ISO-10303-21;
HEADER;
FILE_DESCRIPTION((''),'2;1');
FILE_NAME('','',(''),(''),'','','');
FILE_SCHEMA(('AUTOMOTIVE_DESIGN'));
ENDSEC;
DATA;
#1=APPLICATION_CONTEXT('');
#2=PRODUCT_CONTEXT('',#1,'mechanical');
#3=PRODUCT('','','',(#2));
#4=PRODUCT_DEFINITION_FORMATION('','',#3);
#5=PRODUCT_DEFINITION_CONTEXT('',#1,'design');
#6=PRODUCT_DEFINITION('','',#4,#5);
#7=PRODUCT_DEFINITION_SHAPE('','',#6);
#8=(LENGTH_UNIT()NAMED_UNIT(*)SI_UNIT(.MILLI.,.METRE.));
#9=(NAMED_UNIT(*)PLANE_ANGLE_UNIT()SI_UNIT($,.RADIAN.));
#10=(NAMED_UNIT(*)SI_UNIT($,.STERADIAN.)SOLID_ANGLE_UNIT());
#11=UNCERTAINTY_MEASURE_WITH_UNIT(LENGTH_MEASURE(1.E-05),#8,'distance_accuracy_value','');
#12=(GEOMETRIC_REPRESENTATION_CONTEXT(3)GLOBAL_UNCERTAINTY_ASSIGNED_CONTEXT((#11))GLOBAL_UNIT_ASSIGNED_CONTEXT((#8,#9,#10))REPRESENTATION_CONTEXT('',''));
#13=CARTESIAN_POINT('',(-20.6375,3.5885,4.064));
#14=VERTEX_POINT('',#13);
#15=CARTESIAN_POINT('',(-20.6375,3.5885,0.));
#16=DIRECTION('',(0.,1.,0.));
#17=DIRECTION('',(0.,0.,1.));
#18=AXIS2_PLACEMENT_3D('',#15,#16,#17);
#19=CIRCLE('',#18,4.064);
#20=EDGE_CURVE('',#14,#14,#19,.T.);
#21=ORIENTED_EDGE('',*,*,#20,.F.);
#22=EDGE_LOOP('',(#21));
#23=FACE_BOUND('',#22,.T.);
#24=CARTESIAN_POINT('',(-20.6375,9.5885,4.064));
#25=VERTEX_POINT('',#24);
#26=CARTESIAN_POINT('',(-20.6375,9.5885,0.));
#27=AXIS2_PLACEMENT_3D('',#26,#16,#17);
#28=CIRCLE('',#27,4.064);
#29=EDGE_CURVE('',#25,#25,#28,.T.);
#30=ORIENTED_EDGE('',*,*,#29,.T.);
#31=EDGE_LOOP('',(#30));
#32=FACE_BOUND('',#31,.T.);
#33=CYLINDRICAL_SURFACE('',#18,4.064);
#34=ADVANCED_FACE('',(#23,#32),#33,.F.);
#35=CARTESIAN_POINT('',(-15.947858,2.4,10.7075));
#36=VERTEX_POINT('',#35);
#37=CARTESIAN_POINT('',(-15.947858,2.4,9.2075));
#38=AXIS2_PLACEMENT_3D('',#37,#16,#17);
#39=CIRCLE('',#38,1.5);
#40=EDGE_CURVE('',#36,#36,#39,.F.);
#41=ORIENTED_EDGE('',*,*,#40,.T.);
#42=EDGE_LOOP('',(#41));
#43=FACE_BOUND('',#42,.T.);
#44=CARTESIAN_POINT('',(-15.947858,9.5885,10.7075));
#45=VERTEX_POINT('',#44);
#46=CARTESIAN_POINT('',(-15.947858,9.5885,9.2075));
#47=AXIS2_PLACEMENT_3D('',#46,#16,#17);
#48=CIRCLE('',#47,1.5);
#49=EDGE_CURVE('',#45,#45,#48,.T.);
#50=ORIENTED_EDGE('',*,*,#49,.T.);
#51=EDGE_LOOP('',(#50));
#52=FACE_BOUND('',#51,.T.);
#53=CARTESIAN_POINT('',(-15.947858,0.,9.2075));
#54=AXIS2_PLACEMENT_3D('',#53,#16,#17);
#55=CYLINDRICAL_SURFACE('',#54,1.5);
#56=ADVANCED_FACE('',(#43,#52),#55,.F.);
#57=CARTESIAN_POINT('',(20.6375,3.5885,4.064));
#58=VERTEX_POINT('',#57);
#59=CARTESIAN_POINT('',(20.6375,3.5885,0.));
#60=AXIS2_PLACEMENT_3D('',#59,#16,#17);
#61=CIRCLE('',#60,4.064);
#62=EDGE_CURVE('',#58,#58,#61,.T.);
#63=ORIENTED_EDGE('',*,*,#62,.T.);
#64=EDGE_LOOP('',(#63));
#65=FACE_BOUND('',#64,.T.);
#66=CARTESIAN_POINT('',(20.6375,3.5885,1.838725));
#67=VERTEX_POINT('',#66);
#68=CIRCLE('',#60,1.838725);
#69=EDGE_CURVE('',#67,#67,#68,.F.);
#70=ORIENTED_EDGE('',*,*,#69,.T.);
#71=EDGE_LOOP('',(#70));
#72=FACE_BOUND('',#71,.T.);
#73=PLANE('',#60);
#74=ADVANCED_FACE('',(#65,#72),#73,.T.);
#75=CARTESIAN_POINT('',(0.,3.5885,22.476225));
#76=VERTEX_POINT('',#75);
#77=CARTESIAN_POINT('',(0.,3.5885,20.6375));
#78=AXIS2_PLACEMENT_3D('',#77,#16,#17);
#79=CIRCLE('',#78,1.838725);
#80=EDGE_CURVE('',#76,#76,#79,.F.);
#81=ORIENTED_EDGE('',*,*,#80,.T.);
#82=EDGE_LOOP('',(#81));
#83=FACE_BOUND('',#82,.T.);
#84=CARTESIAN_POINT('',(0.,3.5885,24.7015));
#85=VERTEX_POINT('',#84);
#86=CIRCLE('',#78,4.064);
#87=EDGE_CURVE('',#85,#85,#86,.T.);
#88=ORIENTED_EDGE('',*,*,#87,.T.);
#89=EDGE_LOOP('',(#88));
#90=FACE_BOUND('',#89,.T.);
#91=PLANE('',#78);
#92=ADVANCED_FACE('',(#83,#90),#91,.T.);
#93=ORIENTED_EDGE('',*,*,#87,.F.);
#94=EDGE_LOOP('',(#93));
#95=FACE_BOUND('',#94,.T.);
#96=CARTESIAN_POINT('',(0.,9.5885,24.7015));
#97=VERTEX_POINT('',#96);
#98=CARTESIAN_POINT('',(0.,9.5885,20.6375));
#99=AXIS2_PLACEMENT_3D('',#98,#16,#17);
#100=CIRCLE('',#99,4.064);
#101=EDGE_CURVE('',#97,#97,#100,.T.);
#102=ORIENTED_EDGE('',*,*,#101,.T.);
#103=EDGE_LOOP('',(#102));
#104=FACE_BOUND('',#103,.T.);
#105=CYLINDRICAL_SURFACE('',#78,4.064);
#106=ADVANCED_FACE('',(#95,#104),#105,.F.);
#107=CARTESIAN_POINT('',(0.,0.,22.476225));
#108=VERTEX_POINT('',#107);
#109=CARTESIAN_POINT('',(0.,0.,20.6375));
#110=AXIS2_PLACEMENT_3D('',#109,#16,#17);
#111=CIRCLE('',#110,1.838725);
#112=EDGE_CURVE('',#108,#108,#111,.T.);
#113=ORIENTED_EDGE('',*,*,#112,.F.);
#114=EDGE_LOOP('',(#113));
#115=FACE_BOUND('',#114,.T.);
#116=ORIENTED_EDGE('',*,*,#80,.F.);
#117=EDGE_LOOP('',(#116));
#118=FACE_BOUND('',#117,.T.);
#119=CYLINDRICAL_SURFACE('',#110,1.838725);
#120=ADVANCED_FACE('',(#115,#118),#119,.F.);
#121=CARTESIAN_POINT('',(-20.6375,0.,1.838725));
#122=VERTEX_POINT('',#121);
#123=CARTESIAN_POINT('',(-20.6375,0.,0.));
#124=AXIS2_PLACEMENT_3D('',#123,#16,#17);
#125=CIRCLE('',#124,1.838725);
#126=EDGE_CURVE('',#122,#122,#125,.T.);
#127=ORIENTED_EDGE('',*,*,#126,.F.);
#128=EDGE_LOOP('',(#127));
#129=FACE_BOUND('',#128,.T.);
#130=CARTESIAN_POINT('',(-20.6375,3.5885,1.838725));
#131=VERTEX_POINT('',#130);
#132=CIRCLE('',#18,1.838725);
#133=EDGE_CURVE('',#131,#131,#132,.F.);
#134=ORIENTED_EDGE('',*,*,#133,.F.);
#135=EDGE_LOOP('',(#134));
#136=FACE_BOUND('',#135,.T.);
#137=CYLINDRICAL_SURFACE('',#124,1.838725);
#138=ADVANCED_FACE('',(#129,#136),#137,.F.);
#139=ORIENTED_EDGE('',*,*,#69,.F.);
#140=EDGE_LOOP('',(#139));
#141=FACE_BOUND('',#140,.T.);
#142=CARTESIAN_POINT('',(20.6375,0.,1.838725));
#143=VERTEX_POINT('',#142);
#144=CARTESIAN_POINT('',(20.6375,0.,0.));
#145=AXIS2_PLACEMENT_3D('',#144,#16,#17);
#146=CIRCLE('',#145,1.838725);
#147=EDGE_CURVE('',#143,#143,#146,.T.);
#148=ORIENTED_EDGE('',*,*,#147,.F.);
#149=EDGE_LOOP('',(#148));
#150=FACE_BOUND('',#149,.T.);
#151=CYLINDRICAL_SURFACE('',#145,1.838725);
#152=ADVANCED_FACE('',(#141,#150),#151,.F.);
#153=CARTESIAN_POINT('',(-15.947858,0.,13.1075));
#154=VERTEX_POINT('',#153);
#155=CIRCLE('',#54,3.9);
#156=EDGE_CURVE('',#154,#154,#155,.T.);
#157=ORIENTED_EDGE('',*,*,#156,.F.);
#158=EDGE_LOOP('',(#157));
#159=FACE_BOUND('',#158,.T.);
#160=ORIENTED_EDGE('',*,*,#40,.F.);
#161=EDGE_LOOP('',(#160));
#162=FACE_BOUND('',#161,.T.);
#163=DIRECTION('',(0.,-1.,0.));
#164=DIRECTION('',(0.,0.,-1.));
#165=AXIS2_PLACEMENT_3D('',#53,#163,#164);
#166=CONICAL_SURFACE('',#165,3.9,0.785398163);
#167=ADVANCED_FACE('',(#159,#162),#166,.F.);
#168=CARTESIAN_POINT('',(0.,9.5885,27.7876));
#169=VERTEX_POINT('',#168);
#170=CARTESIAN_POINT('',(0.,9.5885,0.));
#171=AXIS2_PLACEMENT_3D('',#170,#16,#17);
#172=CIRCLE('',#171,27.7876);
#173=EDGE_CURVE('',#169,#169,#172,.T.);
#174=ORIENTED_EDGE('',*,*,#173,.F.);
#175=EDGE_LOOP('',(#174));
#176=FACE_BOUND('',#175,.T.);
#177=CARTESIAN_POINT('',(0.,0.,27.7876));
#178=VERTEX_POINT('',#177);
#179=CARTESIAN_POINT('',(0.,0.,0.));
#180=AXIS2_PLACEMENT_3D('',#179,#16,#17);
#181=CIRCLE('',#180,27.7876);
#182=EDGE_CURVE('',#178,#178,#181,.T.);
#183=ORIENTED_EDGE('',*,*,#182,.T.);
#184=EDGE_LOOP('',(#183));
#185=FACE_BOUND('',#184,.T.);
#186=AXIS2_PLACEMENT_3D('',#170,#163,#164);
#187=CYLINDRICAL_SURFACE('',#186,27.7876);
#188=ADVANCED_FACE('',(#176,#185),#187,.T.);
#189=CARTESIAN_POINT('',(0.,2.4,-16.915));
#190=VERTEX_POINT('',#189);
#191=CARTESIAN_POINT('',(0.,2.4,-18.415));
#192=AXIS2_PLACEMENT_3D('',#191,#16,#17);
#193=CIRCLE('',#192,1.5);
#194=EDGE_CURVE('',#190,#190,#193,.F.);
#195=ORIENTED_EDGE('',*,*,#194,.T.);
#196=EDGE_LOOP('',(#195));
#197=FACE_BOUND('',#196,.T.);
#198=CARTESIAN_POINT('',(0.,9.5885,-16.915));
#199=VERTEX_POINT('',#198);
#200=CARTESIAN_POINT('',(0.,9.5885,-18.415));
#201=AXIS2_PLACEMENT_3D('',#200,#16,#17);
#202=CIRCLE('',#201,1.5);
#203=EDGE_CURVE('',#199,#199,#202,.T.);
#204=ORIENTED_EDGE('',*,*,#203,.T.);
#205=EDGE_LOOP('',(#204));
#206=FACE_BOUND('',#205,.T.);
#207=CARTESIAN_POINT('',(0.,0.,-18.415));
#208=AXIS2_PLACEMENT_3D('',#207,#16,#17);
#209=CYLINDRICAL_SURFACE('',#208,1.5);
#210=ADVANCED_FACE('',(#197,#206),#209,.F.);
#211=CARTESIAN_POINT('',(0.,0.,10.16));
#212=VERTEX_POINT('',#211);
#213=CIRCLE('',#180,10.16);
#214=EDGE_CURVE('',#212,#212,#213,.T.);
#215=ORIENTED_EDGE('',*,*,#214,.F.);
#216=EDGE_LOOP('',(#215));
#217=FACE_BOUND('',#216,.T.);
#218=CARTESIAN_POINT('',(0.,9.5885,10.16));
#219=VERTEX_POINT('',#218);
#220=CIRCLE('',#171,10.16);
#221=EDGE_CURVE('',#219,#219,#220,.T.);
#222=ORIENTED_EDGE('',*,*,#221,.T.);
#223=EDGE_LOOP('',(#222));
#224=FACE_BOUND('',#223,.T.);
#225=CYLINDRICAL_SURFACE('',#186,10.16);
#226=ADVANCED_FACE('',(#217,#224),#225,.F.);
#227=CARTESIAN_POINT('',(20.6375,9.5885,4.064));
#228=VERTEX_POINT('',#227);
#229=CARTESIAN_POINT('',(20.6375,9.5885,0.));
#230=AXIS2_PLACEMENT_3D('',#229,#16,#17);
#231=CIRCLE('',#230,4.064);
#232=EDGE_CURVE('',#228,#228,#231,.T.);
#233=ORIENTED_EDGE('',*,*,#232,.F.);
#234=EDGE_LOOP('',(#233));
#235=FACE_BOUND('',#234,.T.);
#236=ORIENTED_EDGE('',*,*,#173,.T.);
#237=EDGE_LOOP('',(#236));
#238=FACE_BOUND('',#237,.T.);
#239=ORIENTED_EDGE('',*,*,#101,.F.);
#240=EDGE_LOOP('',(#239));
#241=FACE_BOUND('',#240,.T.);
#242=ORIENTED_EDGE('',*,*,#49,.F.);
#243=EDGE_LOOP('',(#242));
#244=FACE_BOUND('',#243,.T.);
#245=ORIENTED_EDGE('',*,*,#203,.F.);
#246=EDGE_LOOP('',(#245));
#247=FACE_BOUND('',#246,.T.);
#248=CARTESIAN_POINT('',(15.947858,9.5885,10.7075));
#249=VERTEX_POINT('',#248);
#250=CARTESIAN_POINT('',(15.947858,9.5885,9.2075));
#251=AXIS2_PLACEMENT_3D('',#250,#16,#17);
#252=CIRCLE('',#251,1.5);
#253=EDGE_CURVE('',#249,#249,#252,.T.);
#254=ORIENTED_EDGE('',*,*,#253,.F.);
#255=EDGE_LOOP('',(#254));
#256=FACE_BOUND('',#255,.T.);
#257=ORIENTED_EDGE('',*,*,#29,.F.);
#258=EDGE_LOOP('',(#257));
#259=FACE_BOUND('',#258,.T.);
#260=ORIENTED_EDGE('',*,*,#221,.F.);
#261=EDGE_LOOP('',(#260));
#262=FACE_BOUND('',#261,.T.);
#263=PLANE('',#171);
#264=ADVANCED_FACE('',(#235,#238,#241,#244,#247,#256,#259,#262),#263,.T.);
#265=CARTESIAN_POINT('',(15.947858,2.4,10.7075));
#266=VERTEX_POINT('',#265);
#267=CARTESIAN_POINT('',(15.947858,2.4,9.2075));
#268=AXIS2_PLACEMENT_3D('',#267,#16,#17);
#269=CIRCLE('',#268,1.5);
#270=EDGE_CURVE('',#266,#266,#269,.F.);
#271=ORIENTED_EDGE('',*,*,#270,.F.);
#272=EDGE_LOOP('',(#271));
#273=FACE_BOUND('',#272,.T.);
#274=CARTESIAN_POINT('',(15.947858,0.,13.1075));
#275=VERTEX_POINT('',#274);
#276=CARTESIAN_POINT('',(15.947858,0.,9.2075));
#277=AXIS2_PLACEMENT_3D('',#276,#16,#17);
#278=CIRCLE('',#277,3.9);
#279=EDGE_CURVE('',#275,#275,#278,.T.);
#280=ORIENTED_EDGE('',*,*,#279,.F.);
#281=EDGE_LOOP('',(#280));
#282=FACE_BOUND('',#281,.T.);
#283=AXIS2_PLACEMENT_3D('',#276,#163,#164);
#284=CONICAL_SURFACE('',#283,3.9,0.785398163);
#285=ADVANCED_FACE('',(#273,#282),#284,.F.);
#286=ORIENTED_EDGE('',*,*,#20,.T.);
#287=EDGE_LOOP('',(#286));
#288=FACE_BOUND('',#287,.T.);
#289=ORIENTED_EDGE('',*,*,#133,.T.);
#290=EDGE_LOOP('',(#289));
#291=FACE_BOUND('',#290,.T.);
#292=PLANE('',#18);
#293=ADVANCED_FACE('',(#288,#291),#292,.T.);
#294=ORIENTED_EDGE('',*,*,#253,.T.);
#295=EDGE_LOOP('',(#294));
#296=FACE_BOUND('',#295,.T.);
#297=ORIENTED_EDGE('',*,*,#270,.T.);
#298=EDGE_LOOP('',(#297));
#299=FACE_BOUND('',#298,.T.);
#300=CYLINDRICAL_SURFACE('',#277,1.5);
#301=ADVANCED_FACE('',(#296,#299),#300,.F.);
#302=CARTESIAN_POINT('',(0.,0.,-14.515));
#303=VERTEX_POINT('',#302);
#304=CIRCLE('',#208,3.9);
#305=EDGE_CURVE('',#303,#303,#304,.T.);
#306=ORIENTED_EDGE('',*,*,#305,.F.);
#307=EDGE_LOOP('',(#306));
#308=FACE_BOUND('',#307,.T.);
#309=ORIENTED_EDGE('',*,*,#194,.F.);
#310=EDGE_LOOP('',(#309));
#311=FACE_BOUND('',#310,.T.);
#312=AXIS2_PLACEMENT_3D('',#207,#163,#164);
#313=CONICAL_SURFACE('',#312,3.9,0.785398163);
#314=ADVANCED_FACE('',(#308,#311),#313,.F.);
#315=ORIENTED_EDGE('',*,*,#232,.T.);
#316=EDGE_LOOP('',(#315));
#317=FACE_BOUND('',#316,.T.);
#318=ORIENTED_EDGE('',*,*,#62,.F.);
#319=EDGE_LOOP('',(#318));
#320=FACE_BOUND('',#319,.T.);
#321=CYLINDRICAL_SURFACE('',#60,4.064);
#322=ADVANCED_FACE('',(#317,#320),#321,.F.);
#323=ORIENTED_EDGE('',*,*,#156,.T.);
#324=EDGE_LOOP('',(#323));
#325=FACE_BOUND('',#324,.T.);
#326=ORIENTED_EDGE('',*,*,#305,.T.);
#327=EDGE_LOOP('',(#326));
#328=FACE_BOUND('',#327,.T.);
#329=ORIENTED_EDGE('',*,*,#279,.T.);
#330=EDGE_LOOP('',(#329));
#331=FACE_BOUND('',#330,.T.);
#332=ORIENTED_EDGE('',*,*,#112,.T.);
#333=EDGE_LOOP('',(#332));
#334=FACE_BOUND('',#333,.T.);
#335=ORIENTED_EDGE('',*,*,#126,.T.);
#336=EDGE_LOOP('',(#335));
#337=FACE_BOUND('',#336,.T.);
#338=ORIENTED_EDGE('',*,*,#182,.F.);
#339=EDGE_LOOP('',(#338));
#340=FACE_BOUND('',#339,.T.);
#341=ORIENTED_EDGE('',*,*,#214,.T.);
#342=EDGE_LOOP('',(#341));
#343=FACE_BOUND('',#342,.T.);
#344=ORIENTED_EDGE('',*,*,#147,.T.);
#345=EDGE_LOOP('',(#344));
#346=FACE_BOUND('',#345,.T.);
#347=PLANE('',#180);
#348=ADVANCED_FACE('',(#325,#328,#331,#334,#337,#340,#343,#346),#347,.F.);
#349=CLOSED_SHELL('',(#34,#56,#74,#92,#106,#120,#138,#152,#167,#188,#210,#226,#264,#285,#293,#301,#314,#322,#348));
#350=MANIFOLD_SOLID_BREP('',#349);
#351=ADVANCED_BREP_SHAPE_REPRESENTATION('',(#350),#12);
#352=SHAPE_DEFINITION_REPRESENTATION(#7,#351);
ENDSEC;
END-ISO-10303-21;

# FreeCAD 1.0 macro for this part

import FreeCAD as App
import Part
import Sketcher
from FreeCAD import Vector


def edges_at(feature, points):
    """Names of the edges that pass closest to the given points."""
    edges = feature.Shape.Edges
    near = lambda p: min(range(len(edges)), key=lambda i: edges[i].distToShape(Part.Vertex(*p))[0])
    return sorted({f"Edge{near(p) + 1}" for p in points})

doc = App.newDocument("Part")
params = doc.addObject("Spreadsheet::Sheet", "Params")
for row, (alias, value) in enumerate([
    ("sketch1_diameter", "20.32 mm"),
    ("pad1_length", "9.5885 mm"),
    ("sketch2_diameter", "3 mm"),
    ("chamfer_size", "2.4 mm"),
    ("pocket3_length", "6 mm"),
], start=1):
    params.set(f"A{row}", alias)
    params.set(f"B{row}", "=" + value)
    params.setAlias(f"B{row}", alias)

body = doc.addObject("PartDesign::Body", "Body")

sketch1 = body.newObject("Sketcher::SketchObject", "Sketch")
sketch1.AttachmentSupport = (doc.getObject("XZ_Plane"), [""])
sketch1.MapMode = "FlatFace"
sketch1.addGeometry([
    Part.Circle(Vector(0, 0, 0), Vector(0, 0, 1), 27.7876),
    Part.Circle(Vector(0, 0, 0), Vector(0, 0, 1), 10.16),
], False)
sketch1.addConstraint([
    Sketcher.Constraint("Coincident", 0, 3, -1, 1),
    Sketcher.Constraint("Coincident", 1, 3, -1, 1),
    Sketcher.Constraint("Diameter", 1, 20.32),
    Sketcher.Constraint("Diameter", 0, 55.5752),
])
sketch1.setExpression("Constraints[2]", "Params.sketch1_diameter")
pad1 = body.newObject("PartDesign::Pad", "Pad")
pad1.Profile = sketch1
pad1.setExpression("Length", "Params.pad1_length")
pad1.Reversed = True

sketch2 = body.newObject("Sketcher::SketchObject", "Sketch001")
sketch2.AttachmentSupport = (doc.getObject("XZ_Plane"), [""])
sketch2.MapMode = "FlatFace"
sketch2.AttachmentOffset = App.Placement(Vector(0, 0, -9.5885), App.Rotation())
sketch2.addGeometry([
    Part.Circle(Vector(0, -18.415, 0), Vector(0, 0, 1), 1.5),
    Part.Circle(Vector(15.947858, 9.2075, 0), Vector(0, 0, 1), 1.5),
    Part.Circle(Vector(-15.947858, 9.2075, 0), Vector(0, 0, 1), 1.5),
], False)
sketch2.addConstraint([
    Sketcher.Constraint("Equal", 0, 1),
    Sketcher.Constraint("Equal", 1, 2),
    Sketcher.Constraint("Symmetric", 1, 3, 2, 3, -2),
    Sketcher.Constraint("PointOnObject", 0, 3, -2),
    Sketcher.Constraint("Diameter", 0, 3.0),
    Sketcher.Constraint("DistanceY", 0, 3, -1, 1, 18.415),
    Sketcher.Constraint("DistanceY", -1, 1, 1, 3, 9.2075),
    Sketcher.Constraint("DistanceX", -1, 1, 1, 3, 15.947858),
])
sketch2.setExpression("Constraints[4]", "Params.sketch2_diameter")
pocket1 = body.newObject("PartDesign::Pocket", "Pocket")
pocket1.Profile = sketch2
pocket1.Type = "ThroughAll"
pocket1.Reversed = True
doc.recompute()

chamfer = body.newObject("PartDesign::Chamfer", "Chamfer")
chamfer.Base = (pocket1, edges_at(pocket1, [(-1.5, 0, -18.415), (14.448, 0, 9.207), (-17.448, 0, 9.207)]))
chamfer.setExpression("Size", "Params.chamfer_size")

sketch3 = body.newObject("Sketcher::SketchObject", "Sketch002")
sketch3.AttachmentSupport = (doc.getObject("XZ_Plane"), [""])
sketch3.MapMode = "FlatFace"
sketch3.AttachmentOffset = App.Placement(Vector(0, 0, -9.5885), App.Rotation())
sketch3.addGeometry([
    Part.Circle(Vector(20.6375, 0, 0), Vector(0, 0, 1), 1.838725),
    Part.Circle(Vector(0, 20.6375, 0), Vector(0, 0, 1), 1.838725),
    Part.Circle(Vector(-20.6375, 0, 0), Vector(0, 0, 1), 1.838725),
], False)
sketch3.addConstraint([
    Sketcher.Constraint("Equal", 0, 1),
    Sketcher.Constraint("Equal", 1, 2),
    Sketcher.Constraint("Symmetric", 0, 3, 2, 3, -1, 1),
    Sketcher.Constraint("PointOnObject", 0, 3, -1),
    Sketcher.Constraint("PointOnObject", 1, 3, -2),
    Sketcher.Constraint("Diameter", 0, 3.67745),
    Sketcher.Constraint("DistanceX", 2, 3, 0, 3, 41.275),
    Sketcher.Constraint("DistanceY", -1, 1, 1, 3, 20.6375),
])
pocket2 = body.newObject("PartDesign::Pocket", "Pocket001")
pocket2.Profile = sketch3
pocket2.Type = "ThroughAll"
pocket2.Reversed = True

sketch4 = body.newObject("Sketcher::SketchObject", "Sketch003")
sketch4.AttachmentSupport = (doc.getObject("XZ_Plane"), [""])
sketch4.MapMode = "FlatFace"
sketch4.AttachmentOffset = App.Placement(Vector(0, 0, -9.5885), App.Rotation())
sketch4.addGeometry([
    Part.Circle(Vector(-20.6375, 0, 0), Vector(0, 0, 1), 4.064),
    Part.Circle(Vector(0, 20.6375, 0), Vector(0, 0, 1), 4.064),
    Part.Circle(Vector(20.6375, 0, 0), Vector(0, 0, 1), 4.064),
], False)
sketch4.addConstraint([
    Sketcher.Constraint("Equal", 0, 1),
    Sketcher.Constraint("Equal", 1, 2),
    Sketcher.Constraint("Symmetric", 0, 3, 2, 3, -1, 1),
    Sketcher.Constraint("PointOnObject", 0, 3, -1),
    Sketcher.Constraint("PointOnObject", 1, 3, -2),
    Sketcher.Constraint("Diameter", 0, 8.128),
    Sketcher.Constraint("DistanceX", 0, 3, 2, 3, 41.275),
    Sketcher.Constraint("DistanceY", -1, 1, 1, 3, 20.6375),
])
pocket3 = body.newObject("PartDesign::Pocket", "Pocket002")
pocket3.Profile = sketch4
pocket3.setExpression("Length", "Params.pocket3_length")
pocket3.Reversed = True

doc.recompute()
